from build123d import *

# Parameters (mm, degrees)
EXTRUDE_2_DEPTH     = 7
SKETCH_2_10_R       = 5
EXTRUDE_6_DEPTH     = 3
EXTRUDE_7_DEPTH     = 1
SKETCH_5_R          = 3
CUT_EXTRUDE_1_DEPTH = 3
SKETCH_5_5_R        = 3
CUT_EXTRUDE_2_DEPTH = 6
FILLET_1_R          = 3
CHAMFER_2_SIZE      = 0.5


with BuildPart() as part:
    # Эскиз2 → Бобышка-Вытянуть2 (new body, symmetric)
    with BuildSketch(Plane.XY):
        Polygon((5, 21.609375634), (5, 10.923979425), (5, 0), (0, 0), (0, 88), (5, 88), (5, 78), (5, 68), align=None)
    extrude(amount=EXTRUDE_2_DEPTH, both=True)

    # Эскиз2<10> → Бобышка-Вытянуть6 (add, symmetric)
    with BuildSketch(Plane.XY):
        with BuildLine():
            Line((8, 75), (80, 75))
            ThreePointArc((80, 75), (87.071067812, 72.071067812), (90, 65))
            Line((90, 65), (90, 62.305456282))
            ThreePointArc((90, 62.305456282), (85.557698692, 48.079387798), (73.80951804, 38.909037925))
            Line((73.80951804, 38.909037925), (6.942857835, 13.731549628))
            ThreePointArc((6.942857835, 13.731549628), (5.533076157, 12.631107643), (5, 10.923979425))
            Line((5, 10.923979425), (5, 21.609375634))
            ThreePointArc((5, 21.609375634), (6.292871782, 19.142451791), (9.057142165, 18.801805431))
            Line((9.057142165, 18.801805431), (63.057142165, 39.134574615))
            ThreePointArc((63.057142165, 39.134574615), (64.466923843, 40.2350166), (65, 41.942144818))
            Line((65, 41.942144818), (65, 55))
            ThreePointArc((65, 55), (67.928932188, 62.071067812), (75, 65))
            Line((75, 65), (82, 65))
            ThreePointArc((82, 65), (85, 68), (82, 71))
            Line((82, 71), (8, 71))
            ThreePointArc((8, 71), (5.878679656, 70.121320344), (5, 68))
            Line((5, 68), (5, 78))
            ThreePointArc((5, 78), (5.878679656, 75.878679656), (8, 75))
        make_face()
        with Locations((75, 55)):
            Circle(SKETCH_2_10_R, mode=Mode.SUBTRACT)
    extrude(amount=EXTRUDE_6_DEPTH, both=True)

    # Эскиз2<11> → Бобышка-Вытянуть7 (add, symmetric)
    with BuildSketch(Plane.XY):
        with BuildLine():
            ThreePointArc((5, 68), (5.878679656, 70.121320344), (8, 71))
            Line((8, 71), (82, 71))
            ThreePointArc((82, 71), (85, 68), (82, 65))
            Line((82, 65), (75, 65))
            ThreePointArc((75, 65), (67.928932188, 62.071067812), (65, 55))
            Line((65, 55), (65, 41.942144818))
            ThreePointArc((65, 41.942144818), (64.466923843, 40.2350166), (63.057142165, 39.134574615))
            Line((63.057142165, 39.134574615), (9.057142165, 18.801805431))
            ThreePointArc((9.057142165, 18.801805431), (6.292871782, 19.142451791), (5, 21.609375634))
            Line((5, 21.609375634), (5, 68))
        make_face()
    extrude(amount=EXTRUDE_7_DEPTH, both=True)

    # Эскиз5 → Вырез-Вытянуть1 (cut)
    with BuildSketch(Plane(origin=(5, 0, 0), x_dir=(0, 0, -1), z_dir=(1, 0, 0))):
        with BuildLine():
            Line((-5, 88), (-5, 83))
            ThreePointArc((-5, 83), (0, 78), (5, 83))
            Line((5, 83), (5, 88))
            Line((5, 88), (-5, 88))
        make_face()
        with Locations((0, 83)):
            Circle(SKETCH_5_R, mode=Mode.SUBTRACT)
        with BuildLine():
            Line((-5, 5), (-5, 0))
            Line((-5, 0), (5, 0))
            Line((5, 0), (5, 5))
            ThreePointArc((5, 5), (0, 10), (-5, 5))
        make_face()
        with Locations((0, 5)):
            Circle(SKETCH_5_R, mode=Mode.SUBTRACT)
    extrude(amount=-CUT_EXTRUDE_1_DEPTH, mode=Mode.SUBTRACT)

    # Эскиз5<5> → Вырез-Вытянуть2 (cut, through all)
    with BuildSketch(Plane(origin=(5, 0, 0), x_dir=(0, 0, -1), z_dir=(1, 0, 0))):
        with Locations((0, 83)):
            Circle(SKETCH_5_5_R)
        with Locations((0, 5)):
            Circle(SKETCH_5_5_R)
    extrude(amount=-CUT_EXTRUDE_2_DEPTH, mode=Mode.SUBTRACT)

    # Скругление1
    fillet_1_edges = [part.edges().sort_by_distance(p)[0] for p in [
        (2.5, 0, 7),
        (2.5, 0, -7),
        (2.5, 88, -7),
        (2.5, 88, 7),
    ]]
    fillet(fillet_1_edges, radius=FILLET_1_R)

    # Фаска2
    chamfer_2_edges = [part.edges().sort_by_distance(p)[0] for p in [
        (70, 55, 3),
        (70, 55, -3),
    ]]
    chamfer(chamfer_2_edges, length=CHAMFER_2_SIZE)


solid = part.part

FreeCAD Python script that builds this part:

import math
import FreeCAD as App
import Part
import Sketcher


def edges_at(feature, points):
    """Names of the edges that pass closest to the given points."""
    edges = feature.Shape.Edges
    near = lambda p: min(range(len(edges)), key=lambda i: edges[i].distToShape(Part.Vertex(*p))[0])
    return sorted({f"Edge{near(p) + 1}" for p in points})

doc = App.newDocument("Part")
body = doc.addObject("PartDesign::Body", "Body")

sketch1 = body.newObject("Sketcher::SketchObject", "Sketch")
sketch1.AttachmentSupport = (doc.getObject("XY_Plane"), [""])
sketch1.MapMode = "FlatFace"
sketch1.addGeometry([
    Part.LineSegment(App.Vector(5, 0, 0), App.Vector(5, 88, 0)),
    Part.LineSegment(App.Vector(5, 88, 0), App.Vector(0, 88, 0)),
    Part.LineSegment(App.Vector(0, 88, 0), App.Vector(0, 0, 0)),
    Part.LineSegment(App.Vector(0, 0, 0), App.Vector(5, 0, 0)),
], False)
sketch1.addConstraint([
    Sketcher.Constraint("Coincident", 0, 2, 1, 1),
    Sketcher.Constraint("Coincident", 1, 2, 2, 1),
    Sketcher.Constraint("Coincident", 2, 2, 3, 1),
    Sketcher.Constraint("Coincident", 3, 2, 0, 1),
    Sketcher.Constraint("Vertical", 0),
    Sketcher.Constraint("Horizontal", 1),
    Sketcher.Constraint("Vertical", 2),
    Sketcher.Constraint("Horizontal", 3),
    Sketcher.Constraint("Coincident", 2, 2, -1, 1),
    Sketcher.Constraint("DistanceX", 1, 2, 1, 1, 5.0),
    Sketcher.Constraint("DistanceY", 0, 1, 0, 2, 88.0),
])
pad1 = body.newObject("PartDesign::Pad", "Pad")
pad1.Profile = sketch1
pad1.Length = 14
pad1.Midplane = True

sketch2 = body.newObject("Sketcher::SketchObject", "Sketch001")
sketch2.AttachmentSupport = (doc.getObject("XY_Plane"), [""])
sketch2.MapMode = "FlatFace"
sketch2.addGeometry([
    Part.LineSegment(App.Vector(80, 75, 0), App.Vector(8, 75, 0)),
    Part.ArcOfCircle(Part.Circle(App.Vector(8, 78, 0), App.Vector(0, 0, 1), 3), math.radians(180), math.radians(270)),
    Part.LineSegment(App.Vector(5, 78, 0), App.Vector(5, 68, 0)),
    Part.ArcOfCircle(Part.Circle(App.Vector(8, 68, 0), App.Vector(0, 0, 1), 3), math.radians(90), math.radians(180)),
    Part.LineSegment(App.Vector(8, 71, 0), App.Vector(82, 71, 0)),
    Part.ArcOfCircle(Part.Circle(App.Vector(82, 68, 0), App.Vector(0, 0, 1), 3), math.radians(-90), math.radians(90)),
    Part.LineSegment(App.Vector(82, 65, 0), App.Vector(75, 65, 0)),
    Part.ArcOfCircle(Part.Circle(App.Vector(75, 55, 0), App.Vector(0, 0, 1), 10), math.radians(90), math.radians(180)),
    Part.LineSegment(App.Vector(65, 55, 0), App.Vector(65, 41.9, 0)),
    Part.ArcOfCircle(Part.Circle(App.Vector(62, 41.9, 0), App.Vector(0, 0, 1), 3), math.radians(-69), math.radians(0)),
    Part.LineSegment(App.Vector(63.1, 39.1, 0), App.Vector(9.1, 18.8, 0)),
    Part.ArcOfCircle(Part.Circle(App.Vector(8, 21.6, 0), App.Vector(0, 0, 1), 3), math.radians(180), math.radians(291)),
    Part.LineSegment(App.Vector(5, 21.6, 0), App.Vector(5, 10.9, 0)),
    Part.ArcOfCircle(Part.Circle(App.Vector(8, 10.9, 0), App.Vector(0, 0, 1), 3), math.radians(111), math.radians(180)),
    Part.LineSegment(App.Vector(6.9, 13.7, 0), App.Vector(73.8, 38.9, 0)),
    Part.ArcOfCircle(Part.Circle(App.Vector(65, 62.3, 0), App.Vector(0, 0, 1), 25), math.radians(-69), math.radians(0)),
    Part.LineSegment(App.Vector(90, 62.3, 0), App.Vector(90, 65, 0)),
    Part.ArcOfCircle(Part.Circle(App.Vector(80, 65, 0), App.Vector(0, 0, 1), 10), math.radians(0), math.radians(90)),
    Part.Circle(App.Vector(75, 55, 0), App.Vector(0, 0, 1), 5),
], False)
sketch2.addConstraint([
    Sketcher.Constraint("Tangent", 0, 2, 1, 2),
    Sketcher.Constraint("Tangent", 1, 1, 2, 1),
    Sketcher.Constraint("Tangent", 2, 2, 3, 2),
    Sketcher.Constraint("Tangent", 3, 1, 4, 1),
    Sketcher.Constraint("Tangent", 4, 2, 5, 2),
    Sketcher.Constraint("Tangent", 5, 1, 6, 1),
    Sketcher.Constraint("Tangent", 6, 2, 7, 1),
    Sketcher.Constraint("Tangent", 7, 2, 8, 1),
    Sketcher.Constraint("Tangent", 8, 2, 9, 2),
    Sketcher.Constraint("Tangent", 9, 1, 10, 1),
    Sketcher.Constraint("Tangent", 10, 2, 11, 2),
    Sketcher.Constraint("Tangent", 11, 1, 12, 1),
    Sketcher.Constraint("Tangent", 12, 2, 13, 2),
    Sketcher.Constraint("Tangent", 13, 1, 14, 1),
    Sketcher.Constraint("Tangent", 14, 2, 15, 1),
    Sketcher.Constraint("Tangent", 15, 2, 16, 1),
    Sketcher.Constraint("Tangent", 16, 2, 17, 1),
    Sketcher.Constraint("Tangent", 17, 2, 0, 1),
    Sketcher.Constraint("Horizontal", 0),
    Sketcher.Constraint("Vertical", 2),
    Sketcher.Constraint("Horizontal", 4),
    Sketcher.Constraint("Horizontal", 6),
    Sketcher.Constraint("Vertical", 8),
    Sketcher.Constraint("Vertical", 12),
    Sketcher.Constraint("Vertical", 16),
    Sketcher.Constraint("Coincident", 18, 3, 7, 3),
    Sketcher.Constraint("Equal", 1, 3),
    Sketcher.Constraint("Equal", 3, 5),
    Sketcher.Constraint("Equal", 5, 9),
    Sketcher.Constraint("Equal", 9, 11),
    Sketcher.Constraint("Equal", 11, 13),
    Sketcher.Constraint("Equal", 7, 17),
    Sketcher.Constraint("Parallel", 10, 14),
    Sketcher.Constraint("Horizontal", 17, 3, 5, 1),
    Sketcher.Constraint("Vertical", 3, 3, 11, 3),
    Sketcher.Constraint("Vertical", 15, 3, 7, 2),
    Sketcher.Constraint("Diameter", 18, 10.0),
    Sketcher.Constraint("Radius", 1, 3.0),
    Sketcher.Constraint("Radius", 7, 10.0),
    Sketcher.Constraint("Radius", 15, 25.0),
    Sketcher.Constraint("DistanceX", 0, 2, 0, 1, 72.0),
    Sketcher.Constraint("DistanceX", 4, 1, 4, 2, 74.0),
    Sketcher.Constraint("DistanceX", -1, 1, 1, 3, 8.0),
    Sketcher.Constraint("DistanceY", -1, 1, 1, 3, 78.0),
    Sketcher.Constraint("Distance", 10, 57.70114),
    Sketcher.Constraint("DistanceY", 8, 2, 8, 1, 13.057855),
    Sketcher.Constraint("DistanceY", 12, 2, 12, 1, 10.685396),
])
pad2 = body.newObject("PartDesign::Pad", "Pad001")
pad2.Profile = sketch2
pad2.Length = 6
pad2.Midplane = True

sketch3 = body.newObject("Sketcher::SketchObject", "Sketch002")
sketch3.AttachmentSupport = (doc.getObject("XY_Plane"), [""])
sketch3.MapMode = "FlatFace"
sketch3.addGeometry([
    Part.ArcOfCircle(Part.Circle(App.Vector(8, 68, 0), App.Vector(0, 0, 1), 3), math.radians(90), math.radians(180)),
    Part.LineSegment(App.Vector(5, 68, 0), App.Vector(5, 21.6, 0)),
    Part.ArcOfCircle(Part.Circle(App.Vector(8, 21.6, 0), App.Vector(0, 0, 1), 3), math.radians(180), math.radians(291)),
    Part.LineSegment(App.Vector(9.1, 18.8, 0), App.Vector(63.1, 39.1, 0)),
    Part.ArcOfCircle(Part.Circle(App.Vector(62, 41.9, 0), App.Vector(0, 0, 1), 3), math.radians(-69), math.radians(0)),
    Part.LineSegment(App.Vector(65, 41.9, 0), App.Vector(65, 55, 0)),
    Part.ArcOfCircle(Part.Circle(App.Vector(75, 55, 0), App.Vector(0, 0, 1), 10), math.radians(90), math.radians(180)),
    Part.LineSegment(App.Vector(75, 65, 0), App.Vector(82, 65, 0)),
    Part.ArcOfCircle(Part.Circle(App.Vector(82, 68, 0), App.Vector(0, 0, 1), 3), math.radians(-90), math.radians(90)),
    Part.LineSegment(App.Vector(82, 71, 0), App.Vector(8, 71, 0)),
], False)
sketch3.addConstraint([
    Sketcher.Constraint("Tangent", 0, 2, 1, 1),
    Sketcher.Constraint("Tangent", 1, 2, 2, 1),
    Sketcher.Constraint("Tangent", 2, 2, 3, 1),
    Sketcher.Constraint("Tangent", 3, 2, 4, 1),
    Sketcher.Constraint("Tangent", 4, 2, 5, 1),
    Sketcher.Constraint("Tangent", 5, 2, 6, 2),
    Sketcher.Constraint("Tangent", 6, 1, 7, 1),
    Sketcher.Constraint("Tangent", 7, 2, 8, 1),
    Sketcher.Constraint("Tangent", 8, 2, 9, 1),
    Sketcher.Constraint("Tangent", 9, 2, 0, 1),
    Sketcher.Constraint("Vertical", 1),
    Sketcher.Constraint("Vertical", 5),
    Sketcher.Constraint("Horizontal", 7),
    Sketcher.Constraint("Horizontal", 9),
    Sketcher.Constraint("Equal", 0, 2),
    Sketcher.Constraint("Equal", 2, 4),
    Sketcher.Constraint("Equal", 4, 8),
    Sketcher.Constraint("Radius", 0, 3.0),
    Sketcher.Constraint("Radius", 6, 10.0),
    Sketcher.Constraint("DistanceX", 7, 1, 7, 2, 7.0),
    Sketcher.Constraint("DistanceX", 9, 2, 9, 1, 74.0),
    Sketcher.Constraint("DistanceX", -1, 1, 0, 3, 8.0),
    Sketcher.Constraint("DistanceY", -1, 1, 0, 3, 68.0),
    Sketcher.Constraint("DistanceY", 2, 3, 3, 2, 17.525199),
    Sketcher.Constraint("DistanceY", 1, 2, 1, 1, 46.390624),
])
pad3 = body.newObject("PartDesign::Pad", "Pad002")
pad3.Profile = sketch3
pad3.Length = 2
pad3.Midplane = True

sketch4 = body.newObject("Sketcher::SketchObject", "Sketch003")
sketch4.AttachmentSupport = (doc.getObject("YZ_Plane"), [""])
sketch4.MapMode = "FlatFace"
sketch4.AttachmentOffset = App.Placement(App.Vector(0, 0, 5), App.Rotation())
sketch4.addGeometry([
    Part.LineSegment(App.Vector(88, 5, 0), App.Vector(83, 5, 0)),
    Part.ArcOfCircle(Part.Circle(App.Vector(83, 0, 0), App.Vector(0, 0, 1), 5), math.radians(90), math.radians(270)),
    Part.LineSegment(App.Vector(83, -5, 0), App.Vector(88, -5, 0)),
    Part.LineSegment(App.Vector(88, -5, 0), App.Vector(88, 5, 0)),
    Part.Circle(App.Vector(83, 0, 0), App.Vector(0, 0, 1), 3),
    Part.LineSegment(App.Vector(5, 5, 0), App.Vector(0, 5, 0)),
    Part.LineSegment(App.Vector(0, 5, 0), App.Vector(0, -5, 0)),
    Part.LineSegment(App.Vector(0, -5, 0), App.Vector(5, -5, 0)),
    Part.ArcOfCircle(Part.Circle(App.Vector(5, 0, 0), App.Vector(0, 0, 1), 5), math.radians(-90), math.radians(90)),
    Part.Circle(App.Vector(5, 0, 0), App.Vector(0, 0, 1), 3),
], False)
sketch4.addConstraint([
    Sketcher.Constraint("Tangent", 0, 2, 1, 1),
    Sketcher.Constraint("Tangent", 1, 2, 2, 1),
    Sketcher.Constraint("Coincident", 2, 2, 3, 1),
    Sketcher.Constraint("Coincident", 3, 2, 0, 1),
    Sketcher.Constraint("Coincident", 5, 2, 6, 1),
    Sketcher.Constraint("Coincident", 6, 2, 7, 1),
    Sketcher.Constraint("Tangent", 7, 2, 8, 1),
    Sketcher.Constraint("Tangent", 8, 2, 5, 1),
    Sketcher.Constraint("Horizontal", 0),
    Sketcher.Constraint("Horizontal", 2),
    Sketcher.Constraint("Vertical", 3),
    Sketcher.Constraint("Horizontal", 5),
    Sketcher.Constraint("Vertical", 6),
    Sketcher.Constraint("Horizontal", 7),
    Sketcher.Constraint("Coincident", 4, 3, 1, 3),
    Sketcher.Constraint("Coincident", 9, 3, 8, 3),
    Sketcher.Constraint("Equal", 1, 8),
    Sketcher.Constraint("Equal", 4, 9),
    Sketcher.Constraint("Symmetric", 5, 2, 6, 2, -1, 1),
    Sketcher.Constraint("PointOnObject", 1, 3, -1),
    Sketcher.Constraint("Equal", 2, 5),
    Sketcher.Constraint("Diameter", 4, 6.0),
    Sketcher.Constraint("Radius", 1, 5.0),
    Sketcher.Constraint("DistanceX", 0, 2, 0, 1, 5.0),
    Sketcher.Constraint("DistanceX", -1, 1, 1, 3, 83.0),
])
pocket1 = body.newObject("PartDesign::Pocket", "Pocket")
pocket1.Profile = sketch4
pocket1.Length = 3

sketch5 = body.newObject("Sketcher::SketchObject", "Sketch004")
sketch5.AttachmentSupport = (doc.getObject("YZ_Plane"), [""])
sketch5.MapMode = "FlatFace"
sketch5.AttachmentOffset = App.Placement(App.Vector(0, 0, 5), App.Rotation())
sketch5.addGeometry([
    Part.Circle(App.Vector(83, 0, 0), App.Vector(0, 0, 1), 3),
    Part.Circle(App.Vector(5, 0, 0), App.Vector(0, 0, 1), 3),
], False)
sketch5.addConstraint([
    Sketcher.Constraint("Equal", 0, 1),
    Sketcher.Constraint("PointOnObject", 0, 3, -1),
    Sketcher.Constraint("PointOnObject", 1, 3, -1),
    Sketcher.Constraint("Diameter", 0, 6.0),
    Sketcher.Constraint("DistanceX", -1, 1, 0, 3, 83.0),
    Sketcher.Constraint("DistanceX", -1, 1, 1, 3, 5.0),
])
pocket2 = body.newObject("PartDesign::Pocket", "Pocket001")
pocket2.Profile = sketch5
pocket2.Type = "ThroughAll"
doc.recompute()

fillet = body.newObject("PartDesign::Fillet", "Fillet")
fillet.Base = (pocket2, edges_at(pocket2, [
    (2.5, 0, 7),
    (2.5, 0, -7),
    (2.5, 88, -7),
    (2.5, 88, 7),
]))
fillet.Radius = 3
doc.recompute()

chamfer = body.newObject("PartDesign::Chamfer", "Chamfer")
chamfer.Base = (fillet, edges_at(fillet, [(70, 55, 3), (70, 55, -3)]))
chamfer.Size = 0.5

doc.recompute()
